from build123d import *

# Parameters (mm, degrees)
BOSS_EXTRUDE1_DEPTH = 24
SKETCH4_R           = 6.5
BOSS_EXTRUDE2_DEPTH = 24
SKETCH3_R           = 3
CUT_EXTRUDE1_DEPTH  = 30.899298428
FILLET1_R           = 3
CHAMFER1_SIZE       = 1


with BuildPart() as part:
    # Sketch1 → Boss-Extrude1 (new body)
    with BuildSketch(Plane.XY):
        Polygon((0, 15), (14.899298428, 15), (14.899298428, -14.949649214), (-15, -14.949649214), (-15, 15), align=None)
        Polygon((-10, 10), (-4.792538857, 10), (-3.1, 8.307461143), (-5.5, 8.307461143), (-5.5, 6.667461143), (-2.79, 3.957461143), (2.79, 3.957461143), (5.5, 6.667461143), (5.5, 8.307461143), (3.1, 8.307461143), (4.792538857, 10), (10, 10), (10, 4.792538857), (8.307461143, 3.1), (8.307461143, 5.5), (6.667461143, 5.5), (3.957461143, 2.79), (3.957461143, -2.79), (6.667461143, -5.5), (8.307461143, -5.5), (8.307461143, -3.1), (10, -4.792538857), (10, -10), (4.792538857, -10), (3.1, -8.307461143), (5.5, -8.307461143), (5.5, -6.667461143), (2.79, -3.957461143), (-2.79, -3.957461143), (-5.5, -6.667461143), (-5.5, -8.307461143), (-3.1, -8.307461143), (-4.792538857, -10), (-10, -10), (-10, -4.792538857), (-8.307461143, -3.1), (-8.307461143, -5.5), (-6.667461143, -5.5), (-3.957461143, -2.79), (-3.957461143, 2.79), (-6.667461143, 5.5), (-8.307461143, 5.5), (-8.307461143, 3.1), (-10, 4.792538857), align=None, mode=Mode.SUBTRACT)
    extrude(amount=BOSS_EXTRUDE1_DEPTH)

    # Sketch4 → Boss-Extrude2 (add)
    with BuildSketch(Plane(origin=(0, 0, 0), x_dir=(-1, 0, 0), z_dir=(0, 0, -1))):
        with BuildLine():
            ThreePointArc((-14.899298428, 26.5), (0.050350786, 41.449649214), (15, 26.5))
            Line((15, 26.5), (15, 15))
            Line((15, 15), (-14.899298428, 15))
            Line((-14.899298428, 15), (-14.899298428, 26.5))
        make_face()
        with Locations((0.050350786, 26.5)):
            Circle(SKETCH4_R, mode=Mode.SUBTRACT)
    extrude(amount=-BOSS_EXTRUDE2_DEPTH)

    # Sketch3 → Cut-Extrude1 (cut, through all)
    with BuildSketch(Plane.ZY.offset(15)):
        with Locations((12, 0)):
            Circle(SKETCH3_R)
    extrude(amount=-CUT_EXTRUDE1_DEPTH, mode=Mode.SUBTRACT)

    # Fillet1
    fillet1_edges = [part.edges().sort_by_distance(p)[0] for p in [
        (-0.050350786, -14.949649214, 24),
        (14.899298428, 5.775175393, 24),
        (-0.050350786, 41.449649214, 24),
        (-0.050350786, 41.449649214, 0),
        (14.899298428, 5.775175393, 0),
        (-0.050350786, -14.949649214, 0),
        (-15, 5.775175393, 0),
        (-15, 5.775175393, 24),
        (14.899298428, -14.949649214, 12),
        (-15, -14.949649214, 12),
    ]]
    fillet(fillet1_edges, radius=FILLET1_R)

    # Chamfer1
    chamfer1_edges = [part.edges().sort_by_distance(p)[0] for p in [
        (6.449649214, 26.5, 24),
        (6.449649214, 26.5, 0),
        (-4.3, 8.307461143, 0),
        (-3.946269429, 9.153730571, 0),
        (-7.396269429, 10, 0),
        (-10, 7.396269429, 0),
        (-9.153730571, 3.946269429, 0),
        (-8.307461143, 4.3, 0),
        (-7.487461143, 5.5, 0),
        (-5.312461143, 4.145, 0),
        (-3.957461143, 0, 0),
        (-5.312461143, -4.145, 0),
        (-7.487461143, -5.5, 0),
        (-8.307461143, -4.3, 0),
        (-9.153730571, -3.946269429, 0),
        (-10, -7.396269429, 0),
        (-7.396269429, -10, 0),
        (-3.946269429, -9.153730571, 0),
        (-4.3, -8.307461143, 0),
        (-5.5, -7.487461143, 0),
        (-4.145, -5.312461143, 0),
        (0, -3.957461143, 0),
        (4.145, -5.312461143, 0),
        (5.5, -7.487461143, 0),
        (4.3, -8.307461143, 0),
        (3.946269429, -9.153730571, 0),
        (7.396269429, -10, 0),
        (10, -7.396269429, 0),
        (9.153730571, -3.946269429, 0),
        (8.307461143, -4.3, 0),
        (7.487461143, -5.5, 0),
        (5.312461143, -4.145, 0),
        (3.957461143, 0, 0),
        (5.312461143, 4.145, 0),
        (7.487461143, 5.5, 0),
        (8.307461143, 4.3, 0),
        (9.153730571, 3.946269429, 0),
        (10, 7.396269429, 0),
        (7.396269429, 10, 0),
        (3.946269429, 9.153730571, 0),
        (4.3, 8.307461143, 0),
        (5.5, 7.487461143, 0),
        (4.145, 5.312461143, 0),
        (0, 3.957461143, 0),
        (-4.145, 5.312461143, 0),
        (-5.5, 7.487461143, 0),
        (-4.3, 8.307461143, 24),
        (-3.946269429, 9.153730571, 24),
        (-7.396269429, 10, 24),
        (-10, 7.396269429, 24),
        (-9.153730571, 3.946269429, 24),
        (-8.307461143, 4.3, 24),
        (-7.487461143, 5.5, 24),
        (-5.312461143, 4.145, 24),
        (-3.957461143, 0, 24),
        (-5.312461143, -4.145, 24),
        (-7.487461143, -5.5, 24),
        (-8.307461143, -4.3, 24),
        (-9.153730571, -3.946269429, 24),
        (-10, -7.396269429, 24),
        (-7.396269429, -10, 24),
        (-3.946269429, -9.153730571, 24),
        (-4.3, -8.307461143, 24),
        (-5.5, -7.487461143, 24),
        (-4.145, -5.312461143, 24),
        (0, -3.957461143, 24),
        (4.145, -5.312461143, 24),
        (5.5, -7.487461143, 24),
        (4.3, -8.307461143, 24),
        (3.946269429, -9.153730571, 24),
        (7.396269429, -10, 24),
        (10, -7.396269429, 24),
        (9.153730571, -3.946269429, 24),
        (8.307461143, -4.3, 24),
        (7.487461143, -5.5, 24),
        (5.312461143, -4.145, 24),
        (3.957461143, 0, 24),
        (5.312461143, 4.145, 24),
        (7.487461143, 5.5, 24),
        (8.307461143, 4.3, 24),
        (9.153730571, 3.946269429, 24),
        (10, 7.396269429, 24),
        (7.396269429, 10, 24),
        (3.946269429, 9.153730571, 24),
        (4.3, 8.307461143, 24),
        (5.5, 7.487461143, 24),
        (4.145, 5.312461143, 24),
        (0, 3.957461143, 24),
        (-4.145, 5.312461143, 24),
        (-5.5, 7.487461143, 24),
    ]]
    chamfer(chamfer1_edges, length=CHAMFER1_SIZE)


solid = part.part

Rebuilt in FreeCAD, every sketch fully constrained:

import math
import FreeCAD as App
import Part
import Sketcher

V = App.Vector
Q = App.Units.Quantity


def edges_at(feature, points):
    """Names of the edges that pass closest to the given points."""
    edges = feature.Shape.Edges
    near = lambda p: min(range(len(edges)), key=lambda i: edges[i].distToShape(Part.Vertex(*p))[0])
    return sorted({f"Edge{near(p) + 1}" for p in points})

doc = App.newDocument("Part")
body = doc.addObject("PartDesign::Body", "Body")

# Sketch on XY plane
sketch1 = body.newObject("Sketcher::SketchObject", "Sketch")
sketch1.AttachmentSupport = (doc.getObject("XY_Plane"), [""])
sketch1.MapMode = "FlatFace"
sketch1.addGeometry([
    Part.LineSegment(V(14.9, 15, 0), V(-15, 15, 0)),  # 0
    Part.LineSegment(V(-15, 15, 0), V(-15, -14.9, 0)),  # 1
    Part.LineSegment(V(-15, -14.9, 0), V(14.9, -14.9, 0)),  # 2
    Part.LineSegment(V(14.9, -14.9, 0), V(14.9, 15, 0)),  # 3
    Part.LineSegment(V(-10, 10, 0), V(-4.8, 10, 0)),  # 4
    Part.LineSegment(V(-4.8, 10, 0), V(-3.1, 8.3, 0)),  # 5
    Part.LineSegment(V(-3.1, 8.3, 0), V(-5.5, 8.3, 0)),  # 6
    Part.LineSegment(V(-5.5, 8.3, 0), V(-5.5, 6.7, 0)),  # 7
    Part.LineSegment(V(-5.5, 6.7, 0), V(-2.8, 4, 0)),  # 8
    Part.LineSegment(V(-2.8, 4, 0), V(2.8, 4, 0)),  # 9
    Part.LineSegment(V(2.8, 4, 0), V(5.5, 6.7, 0)),  # 10
    Part.LineSegment(V(5.5, 6.7, 0), V(5.5, 8.3, 0)),  # 11
    Part.LineSegment(V(5.5, 8.3, 0), V(3.1, 8.3, 0)),  # 12
    Part.LineSegment(V(3.1, 8.3, 0), V(4.8, 10, 0)),  # 13
    Part.LineSegment(V(4.8, 10, 0), V(10, 10, 0)),  # 14
    Part.LineSegment(V(10, 10, 0), V(10, 4.8, 0)),  # 15
    Part.LineSegment(V(10, 4.8, 0), V(8.3, 3.1, 0)),  # 16
    Part.LineSegment(V(8.3, 3.1, 0), V(8.3, 5.5, 0)),  # 17
    Part.LineSegment(V(8.3, 5.5, 0), V(6.7, 5.5, 0)),  # 18
    Part.LineSegment(V(6.7, 5.5, 0), V(4, 2.8, 0)),  # 19
    Part.LineSegment(V(4, 2.8, 0), V(4, -2.8, 0)),  # 20
    Part.LineSegment(V(4, -2.8, 0), V(6.7, -5.5, 0)),  # 21
    Part.LineSegment(V(6.7, -5.5, 0), V(8.3, -5.5, 0)),  # 22
    Part.LineSegment(V(8.3, -5.5, 0), V(8.3, -3.1, 0)),  # 23
    Part.LineSegment(V(8.3, -3.1, 0), V(10, -4.8, 0)),  # 24
    Part.LineSegment(V(10, -4.8, 0), V(10, -10, 0)),  # 25
    Part.LineSegment(V(10, -10, 0), V(4.8, -10, 0)),  # 26
    Part.LineSegment(V(4.8, -10, 0), V(3.1, -8.3, 0)),  # 27
    Part.LineSegment(V(3.1, -8.3, 0), V(5.5, -8.3, 0)),  # 28
    Part.LineSegment(V(5.5, -8.3, 0), V(5.5, -6.7, 0)),  # 29
    Part.LineSegment(V(5.5, -6.7, 0), V(2.8, -4, 0)),  # 30
    Part.LineSegment(V(2.8, -4, 0), V(-2.8, -4, 0)),  # 31
    Part.LineSegment(V(-2.8, -4, 0), V(-5.5, -6.7, 0)),  # 32
    Part.LineSegment(V(-5.5, -6.7, 0), V(-5.5, -8.3, 0)),  # 33
    Part.LineSegment(V(-5.5, -8.3, 0), V(-3.1, -8.3, 0)),  # 34
    Part.LineSegment(V(-3.1, -8.3, 0), V(-4.8, -10, 0)),  # 35
    Part.LineSegment(V(-4.8, -10, 0), V(-10, -10, 0)),  # 36
    Part.LineSegment(V(-10, -10, 0), V(-10, -4.8, 0)),  # 37
    Part.LineSegment(V(-10, -4.8, 0), V(-8.3, -3.1, 0)),  # 38
    Part.LineSegment(V(-8.3, -3.1, 0), V(-8.3, -5.5, 0)),  # 39
    Part.LineSegment(V(-8.3, -5.5, 0), V(-6.7, -5.5, 0)),  # 40
    Part.LineSegment(V(-6.7, -5.5, 0), V(-4, -2.8, 0)),  # 41
    Part.LineSegment(V(-4, -2.8, 0), V(-4, 2.8, 0)),  # 42
    Part.LineSegment(V(-4, 2.8, 0), V(-6.7, 5.5, 0)),  # 43
    Part.LineSegment(V(-6.7, 5.5, 0), V(-8.3, 5.5, 0)),  # 44
    Part.LineSegment(V(-8.3, 5.5, 0), V(-8.3, 3.1, 0)),  # 45
    Part.LineSegment(V(-8.3, 3.1, 0), V(-10, 4.8, 0)),  # 46
    Part.LineSegment(V(-10, 4.8, 0), V(-10, 10, 0)),  # 47
], False)
sketch1.addConstraint([
    Sketcher.Constraint("Coincident", 0, 2, 1, 1),
    Sketcher.Constraint("Coincident", 1, 2, 2, 1),
    Sketcher.Constraint("Coincident", 2, 2, 3, 1),
    Sketcher.Constraint("Coincident", 3, 2, 0, 1),
    Sketcher.Constraint("Coincident", 4, 2, 5, 1),
    Sketcher.Constraint("Coincident", 5, 2, 6, 1),
    Sketcher.Constraint("Coincident", 6, 2, 7, 1),
    Sketcher.Constraint("Coincident", 7, 2, 8, 1),
    Sketcher.Constraint("Coincident", 8, 2, 9, 1),
    Sketcher.Constraint("Coincident", 9, 2, 10, 1),
    Sketcher.Constraint("Coincident", 10, 2, 11, 1),
    Sketcher.Constraint("Coincident", 11, 2, 12, 1),
    Sketcher.Constraint("Coincident", 12, 2, 13, 1),
    Sketcher.Constraint("Coincident", 13, 2, 14, 1),
    Sketcher.Constraint("Coincident", 14, 2, 15, 1),
    Sketcher.Constraint("Coincident", 15, 2, 16, 1),
    Sketcher.Constraint("Coincident", 16, 2, 17, 1),
    Sketcher.Constraint("Coincident", 17, 2, 18, 1),
    Sketcher.Constraint("Coincident", 18, 2, 19, 1),
    Sketcher.Constraint("Coincident", 19, 2, 20, 1),
    Sketcher.Constraint("Coincident", 20, 2, 21, 1),
    Sketcher.Constraint("Coincident", 21, 2, 22, 1),
    Sketcher.Constraint("Coincident", 22, 2, 23, 1),
    Sketcher.Constraint("Coincident", 23, 2, 24, 1),
    Sketcher.Constraint("Coincident", 24, 2, 25, 1),
    Sketcher.Constraint("Coincident", 25, 2, 26, 1),
    Sketcher.Constraint("Coincident", 26, 2, 27, 1),
    Sketcher.Constraint("Coincident", 27, 2, 28, 1),
    Sketcher.Constraint("Coincident", 28, 2, 29, 1),
    Sketcher.Constraint("Coincident", 29, 2, 30, 1),
    Sketcher.Constraint("Coincident", 30, 2, 31, 1),
    Sketcher.Constraint("Coincident", 31, 2, 32, 1),
    Sketcher.Constraint("Coincident", 32, 2, 33, 1),
    Sketcher.Constraint("Coincident", 33, 2, 34, 1),
    Sketcher.Constraint("Coincident", 34, 2, 35, 1),
    Sketcher.Constraint("Coincident", 35, 2, 36, 1),
    Sketcher.Constraint("Coincident", 36, 2, 37, 1),
    Sketcher.Constraint("Coincident", 37, 2, 38, 1),
    Sketcher.Constraint("Coincident", 38, 2, 39, 1),
    Sketcher.Constraint("Coincident", 39, 2, 40, 1),
    Sketcher.Constraint("Coincident", 40, 2, 41, 1),
    Sketcher.Constraint("Coincident", 41, 2, 42, 1),
    Sketcher.Constraint("Coincident", 42, 2, 43, 1),
    Sketcher.Constraint("Coincident", 43, 2, 44, 1),
    Sketcher.Constraint("Coincident", 44, 2, 45, 1),
    Sketcher.Constraint("Coincident", 45, 2, 46, 1),
    Sketcher.Constraint("Coincident", 46, 2, 47, 1),
    Sketcher.Constraint("Coincident", 47, 2, 4, 1),
    Sketcher.Constraint("Horizontal", 0),
    Sketcher.Constraint("Vertical", 1),
    Sketcher.Constraint("Horizontal", 2),
    Sketcher.Constraint("Vertical", 3),
    Sketcher.Constraint("Horizontal", 4),
    Sketcher.Constraint("Horizontal", 6),
    Sketcher.Constraint("Vertical", 7),
    Sketcher.Constraint("Horizontal", 9),
    Sketcher.Constraint("Vertical", 11),
    Sketcher.Constraint("Horizontal", 12),
    Sketcher.Constraint("Horizontal", 14),
    Sketcher.Constraint("Vertical", 15),
    Sketcher.Constraint("Vertical", 17),
    Sketcher.Constraint("Horizontal", 18),
    Sketcher.Constraint("Vertical", 20),
    Sketcher.Constraint("Horizontal", 22),
    Sketcher.Constraint("Vertical", 23),
    Sketcher.Constraint("Vertical", 25),
    Sketcher.Constraint("Horizontal", 26),
    Sketcher.Constraint("Horizontal", 28),
    Sketcher.Constraint("Vertical", 29),
    Sketcher.Constraint("Horizontal", 31),
    Sketcher.Constraint("Vertical", 33),
    Sketcher.Constraint("Horizontal", 34),
    Sketcher.Constraint("Horizontal", 36),
    Sketcher.Constraint("Vertical", 37),
    Sketcher.Constraint("Vertical", 39),
    Sketcher.Constraint("Horizontal", 40),
    Sketcher.Constraint("Vertical", 42),
    Sketcher.Constraint("Horizontal", 44),
    Sketcher.Constraint("Vertical", 45),
    Sketcher.Constraint("Vertical", 47),
    Sketcher.Constraint("Symmetric", 4, 2, 26, 2, -1, 1),
    Sketcher.Constraint("Symmetric", 5, 2, 27, 2, -1, 1),
    Sketcher.Constraint("Symmetric", 7, 2, 29, 2, -1, 1),
    Sketcher.Constraint("Symmetric", 8, 2, 30, 2, -1, 1),
    Sketcher.Constraint("Symmetric", 10, 2, 32, 2, -1, 1),
    Sketcher.Constraint("Symmetric", 12, 2, 34, 2, -1, 1),
    Sketcher.Constraint("Symmetric", 13, 2, 35, 2, -1, 1),
    Sketcher.Constraint("Symmetric", 15, 2, 37, 2, -1, 1),
    Sketcher.Constraint("Symmetric", 16, 2, 38, 2, -1, 1),
    Sketcher.Constraint("Symmetric", 18, 2, 40, 2, -1, 1),
    Sketcher.Constraint("Symmetric", 19, 2, 41, 2, -1, 1),
    Sketcher.Constraint("Symmetric", 21, 2, 43, 2, -1, 1),
    Sketcher.Constraint("Symmetric", 23, 2, 45, 2, -1, 1),
    Sketcher.Constraint("Symmetric", 24, 2, 46, 2, -1, 1),
    Sketcher.Constraint("Symmetric", 7, 2, 10, 2, -2),
    Sketcher.Constraint("Symmetric", 5, 2, 12, 2, -2),
    Sketcher.Constraint("Symmetric", 4, 2, 13, 2, -2),
    Sketcher.Constraint("Symmetric", 24, 2, 37, 2, -2),
    Sketcher.Constraint("Symmetric", 23, 2, 38, 2, -2),
    Sketcher.Constraint("Symmetric", 21, 2, 40, 2, -2),
    Sketcher.Constraint("Parallel", 5, 8),
    Sketcher.Constraint("Perpendicular", 8, 10),
    Sketcher.Constraint("Parallel", 10, 13),
    Sketcher.Constraint("Parallel", 13, 16),
    Sketcher.Constraint("Parallel", 16, 19),
    Sketcher.Constraint("Perpendicular", 19, 21),
    Sketcher.Constraint("Perpendicular", 30, 32),
    Sketcher.Constraint("Perpendicular", 41, 43),
    Sketcher.Constraint("Equal", 44, 7),
    Sketcher.Constraint("Equal", 36, 15),
    Sketcher.Constraint("Equal", 34, 17),
    Sketcher.Constraint("Equal", 31, 20),
    Sketcher.Constraint("Equal", 13, 16),
    Sketcher.Constraint("Equal", 10, 19),
    Sketcher.Constraint("DistanceX", 6, 2, 6, 1, Q("2.4 mm")),
    Sketcher.Constraint("DistanceX", 0, 2, -1, 1, Q("15 mm")),
    Sketcher.Constraint("DistanceY", -1, 1, 0, 2, Q("15 mm")),
    Sketcher.Constraint("DistanceY", -1, 1, 4, 2, Q("10 mm")),
    Sketcher.Constraint("DistanceX", 7, 2, 10, 2, Q("11 mm")),
    Sketcher.Constraint("DistanceX", 9, 1, 9, 2, Q("5.58 mm")),
    Sketcher.Constraint("DistanceX", 18, 2, 18, 1, Q("1.64 mm")),
    Sketcher.Constraint("DistanceX", 0, 2, 0, 1, Q("29.899298 mm")),
    Sketcher.Constraint("DistanceX", 4, 1, 4, 2, Q("5.207461 mm")),
    Sketcher.Constraint("DistanceY", 1, 2, 1, 1, Q("29.949649 mm")),
])
pad1 = body.newObject("PartDesign::Pad", "Pad")
pad1.Profile = sketch1
pad1.Length = 24

# Sketch on XY plane
sketch2 = body.newObject("Sketcher::SketchObject", "Sketch001")
sketch2.AttachmentSupport = (doc.getObject("XY_Plane"), [""])
sketch2.MapMode = "FlatFace"
sketch2.addGeometry([
    Part.ArcOfCircle(Part.Circle(V(0, 26, 0), V(0, 0, 1), 15), math.radians(0), math.radians(180)),  # 0
    Part.LineSegment(V(15, 26, 0), V(15, 15, 0)),  # 1
    Part.LineSegment(V(15, 15, 0), V(-15, 15, 0)),  # 2
    Part.LineSegment(V(-15, 15, 0), V(-15, 26, 0)),  # 3
    Part.Circle(V(0, 26, 0), V(0, 0, 1), 6),  # 4
], False)
sketch2.addConstraint([
    Sketcher.Constraint("Tangent", 0, 1, 1, 1),
    Sketcher.Constraint("Coincident", 1, 2, 2, 1),
    Sketcher.Constraint("Coincident", 2, 2, 3, 1),
    Sketcher.Constraint("Tangent", 3, 2, 0, 2),
    Sketcher.Constraint("Vertical", 1),
    Sketcher.Constraint("Horizontal", 2),
    Sketcher.Constraint("Vertical", 3),
    Sketcher.Constraint("Coincident", 4, 3, 0, 3),
    Sketcher.Constraint("Diameter", 4, Q("13 mm")),
    Sketcher.Constraint("DistanceY", 1, 2, 1, 1, Q("11.5 mm")),
    Sketcher.Constraint("DistanceY", -1, 1, 1, 2, Q("15 mm")),
    Sketcher.Constraint("DistanceX", 2, 2, -1, 1, Q("15 mm")),
    Sketcher.Constraint("Radius", 0, Q("14.949649 mm")),
])
pad2 = body.newObject("PartDesign::Pad", "Pad001")
pad2.Profile = sketch2
pad2.Length = 24

# Sketch on YZ plane
sketch3 = body.newObject("Sketcher::SketchObject", "Sketch002")
sketch3.AttachmentSupport = (doc.getObject("YZ_Plane"), [""])
sketch3.MapMode = "FlatFace"
sketch3.AttachmentOffset = App.Placement(V(0, 0, -15), App.Rotation())
sketch3.addGeometry(Part.Circle(V(0, 12, 0), V(0, 0, 1), 3), False)
sketch3.addConstraint([
    Sketcher.Constraint("PointOnObject", 0, 3, -2),
    Sketcher.Constraint("Diameter", 0, Q("6 mm")),
    Sketcher.Constraint("DistanceY", -1, 1, 0, 3, Q("12 mm")),
])
pocket1 = body.newObject("PartDesign::Pocket", "Pocket")
pocket1.Profile = sketch3
pocket1.Type = "ThroughAll"
pocket1.Reversed = True
doc.recompute()

fillet = body.newObject("PartDesign::Fillet", "Fillet")
fillet.Base = (pocket1, edges_at(pocket1, [
    (-0.05, -14.95, 24),
    (14.899, 5.775, 24),
    (-0.05, 41.45, 24),
    (-0.05, 41.45, 0),
    (14.899, 5.775, 0),
    (-0.05, -14.95, 0),
    (-15, 5.775, 0),
    (-15, 5.775, 24),
    (14.899, -14.95, 12),
    (-15, -14.95, 12),
]))
fillet.Radius = 3
doc.recompute()

chamfer = body.newObject("PartDesign::Chamfer", "Chamfer")
chamfer.Base = (fillet, edges_at(fillet, [
    (6.45, 26.5, 24),
    (6.45, 26.5, 0),
    (-4.3, 8.307, 0),
    (-3.946, 9.154, 0),
    (-7.396, 10, 0),
    (-10, 7.396, 0),
    (-9.154, 3.946, 0),
    (-8.307, 4.3, 0),
    (-7.487, 5.5, 0),
    (-5.312, 4.145, 0),
    (-3.957, 0, 0),
    (-5.312, -4.145, 0),
    (-7.487, -5.5, 0),
    (-8.307, -4.3, 0),
    (-9.154, -3.946, 0),
    (-10, -7.396, 0),
    (-7.396, -10, 0),
    (-3.946, -9.154, 0),
    (-4.3, -8.307, 0),
    (-5.5, -7.487, 0),
    (-4.145, -5.312, 0),
    (0, -3.957, 0),
    (4.145, -5.312, 0),
    (5.5, -7.487, 0),
    (4.3, -8.307, 0),
    (3.946, -9.154, 0),
    (7.396, -10, 0),
    (10, -7.396, 0),
    (9.154, -3.946, 0),
    (8.307, -4.3, 0),
    (7.487, -5.5, 0),
    (5.312, -4.145, 0),
    (3.957, 0, 0),
    (5.312, 4.145, 0),
    (7.487, 5.5, 0),
    (8.307, 4.3, 0),
    (9.154, 3.946, 0),
    (10, 7.396, 0),
    (7.396, 10, 0),
    (3.946, 9.154, 0),
    (4.3, 8.307, 0),
    (5.5, 7.487, 0),
    (4.145, 5.312, 0),
    (0, 3.957, 0),
    (-4.145, 5.312, 0),
    (-5.5, 7.487, 0),
    (-4.3, 8.307, 24),
    (-3.946, 9.154, 24),
    (-7.396, 10, 24),
    (-10, 7.396, 24),
    (-9.154, 3.946, 24),
    (-8.307, 4.3, 24),
    (-7.487, 5.5, 24),
    (-5.312, 4.145, 24),
    (-3.957, 0, 24),
    (-5.312, -4.145, 24),
    (-7.487, -5.5, 24),
    (-8.307, -4.3, 24),
    (-9.154, -3.946, 24),
    (-10, -7.396, 24),
    (-7.396, -10, 24),
    (-3.946, -9.154, 24),
    (-4.3, -8.307, 24),
    (-5.5, -7.487, 24),
    (-4.145, -5.312, 24),
    (0, -3.957, 24),
    (4.145, -5.312, 24),
    (5.5, -7.487, 24),
    (4.3, -8.307, 24),
    (3.946, -9.154, 24),
    (7.396, -10, 24),
    (10, -7.396, 24),
    (9.154, -3.946, 24),
    (8.307, -4.3, 24),
    (7.487, -5.5, 24),
    (5.312, -4.145, 24),
    (3.957, 0, 24),
    (5.312, 4.145, 24),
    (7.487, 5.5, 24),
    (8.307, 4.3, 24),
    (9.154, 3.946, 24),
    (10, 7.396, 24),
    (7.396, 10, 24),
    (3.946, 9.154, 24),
    (4.3, 8.307, 24),
    (5.5, 7.487, 24),
    (4.145, 5.312, 24),
    (0, 3.957, 24),
    (-4.145, 5.312, 24),
    (-5.5, 7.487, 24),
]))
chamfer.Size = 1

doc.recompute()
